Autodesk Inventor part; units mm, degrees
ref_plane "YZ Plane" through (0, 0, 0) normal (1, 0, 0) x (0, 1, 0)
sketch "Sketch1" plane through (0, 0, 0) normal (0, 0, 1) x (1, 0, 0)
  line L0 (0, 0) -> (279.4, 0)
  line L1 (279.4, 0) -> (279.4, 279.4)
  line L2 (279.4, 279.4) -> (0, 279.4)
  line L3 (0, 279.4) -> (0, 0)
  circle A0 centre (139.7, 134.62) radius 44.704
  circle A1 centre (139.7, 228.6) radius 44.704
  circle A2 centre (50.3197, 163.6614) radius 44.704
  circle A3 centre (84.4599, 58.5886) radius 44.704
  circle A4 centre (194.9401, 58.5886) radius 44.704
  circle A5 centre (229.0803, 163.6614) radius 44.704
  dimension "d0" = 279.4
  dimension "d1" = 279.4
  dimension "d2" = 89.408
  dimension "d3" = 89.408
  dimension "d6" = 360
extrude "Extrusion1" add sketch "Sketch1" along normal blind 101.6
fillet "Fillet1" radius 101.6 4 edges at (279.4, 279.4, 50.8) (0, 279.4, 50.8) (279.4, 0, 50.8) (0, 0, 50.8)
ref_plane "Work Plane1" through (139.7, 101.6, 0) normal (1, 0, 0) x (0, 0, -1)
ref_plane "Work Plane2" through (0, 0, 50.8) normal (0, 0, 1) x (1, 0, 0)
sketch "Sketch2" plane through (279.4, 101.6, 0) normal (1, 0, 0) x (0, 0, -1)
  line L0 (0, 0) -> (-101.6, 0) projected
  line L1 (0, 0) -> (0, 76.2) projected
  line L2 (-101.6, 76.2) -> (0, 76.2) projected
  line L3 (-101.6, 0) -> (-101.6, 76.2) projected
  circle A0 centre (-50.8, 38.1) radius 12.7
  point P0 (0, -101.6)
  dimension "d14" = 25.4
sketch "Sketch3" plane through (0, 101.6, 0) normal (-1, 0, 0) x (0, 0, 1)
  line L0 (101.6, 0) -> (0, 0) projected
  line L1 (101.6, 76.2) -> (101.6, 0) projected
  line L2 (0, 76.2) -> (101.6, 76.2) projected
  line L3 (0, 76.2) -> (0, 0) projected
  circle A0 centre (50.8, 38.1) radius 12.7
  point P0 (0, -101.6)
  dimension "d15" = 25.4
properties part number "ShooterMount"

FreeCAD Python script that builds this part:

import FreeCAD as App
import Part
import Sketcher
Q = App.Units.Quantity


def edges_at(feature, points):
    """Names of the edges that pass closest to the given points."""
    edges = feature.Shape.Edges
    near = lambda p: min(range(len(edges)), key=lambda i: edges[i].distToShape(Part.Vertex(*p))[0])
    return sorted({f"Edge{near(p) + 1}" for p in points})

doc = App.newDocument("Part")
body = doc.addObject("PartDesign::Body", "Body")

# Sketch on XY plane
sketch1 = body.newObject("Sketcher::SketchObject", "Sketch")
sketch1.AttachmentSupport = (doc.getObject("XY_Plane"), [""])
sketch1.MapMode = "FlatFace"
sketch1.addGeometry(Part.LineSegment(App.Vector(0, 279.4, 0), App.Vector(0, 0, 0)), False)
sketch1.addGeometry(Part.LineSegment(App.Vector(0, 0, 0), App.Vector(279.4, 0, 0)), False)
sketch1.addGeometry(Part.LineSegment(App.Vector(279.4, 0, 0), App.Vector(279.4, 279.4, 0)), False)
sketch1.addGeometry(Part.LineSegment(App.Vector(279.4, 279.4, 0), App.Vector(0, 279.4, 0)), False)
sketch1.addGeometry(Part.Circle(App.Vector(84.4599, 58.5886, 0), App.Vector(0, 0, 1), 44.704), False)
sketch1.addGeometry(Part.Circle(App.Vector(194.9401, 58.5886, 0), App.Vector(0, 0, 1), 44.704), False)
sketch1.addGeometry(Part.Circle(App.Vector(139.7, 134.62, 0), App.Vector(0, 0, 1), 44.704), False)
sketch1.addGeometry(Part.Circle(App.Vector(50.3197, 163.6614, 0), App.Vector(0, 0, 1), 44.704), False)
sketch1.addGeometry(Part.Circle(App.Vector(229.0803, 163.6614, 0), App.Vector(0, 0, 1), 44.704), False)
sketch1.addGeometry(Part.Circle(App.Vector(139.7, 228.6, 0), App.Vector(0, 0, 1), 44.704), False)
sketch1.addConstraint(Sketcher.Constraint("Coincident", 0, 2, 1, 1))
sketch1.addConstraint(Sketcher.Constraint("Coincident", 1, 2, 2, 1))
sketch1.addConstraint(Sketcher.Constraint("Coincident", 2, 2, 3, 1))
sketch1.addConstraint(Sketcher.Constraint("Coincident", 3, 2, 0, 1))
sketch1.addConstraint(Sketcher.Constraint("Vertical", 0))
sketch1.addConstraint(Sketcher.Constraint("Horizontal", 1))
sketch1.addConstraint(Sketcher.Constraint("Vertical", 2))
sketch1.addConstraint(Sketcher.Constraint("Horizontal", 3))
sketch1.addConstraint(Sketcher.Constraint("Coincident", 0, 2, -1, 1))
sketch1.addConstraint(Sketcher.Constraint("Equal", 4, 5))
sketch1.addConstraint(Sketcher.Constraint("Equal", 5, 6))
sketch1.addConstraint(Sketcher.Constraint("Equal", 6, 7))
sketch1.addConstraint(Sketcher.Constraint("Equal", 7, 8))
sketch1.addConstraint(Sketcher.Constraint("Equal", 8, 9))
sketch1.addConstraint(Sketcher.Constraint("Horizontal", 4, 3, 5, 3))
sketch1.addConstraint(Sketcher.Constraint("Horizontal", 7, 3, 8, 3))
sketch1.addConstraint(Sketcher.Constraint("Vertical", 6, 3, 9, 3))
sketch1.addConstraint(Sketcher.Constraint("Equal", 3, 0))
sketch1.addConstraint(Sketcher.Constraint("Diameter", 4, Q("3.52 in")))
sketch1.addConstraint(Sketcher.Constraint("DistanceX", 1, 1, 1, 2, Q("11 in")))
sketch1.addConstraint(Sketcher.Constraint("DistanceY", -1, 1, 9, 3, Q("9 in")))
sketch1.addConstraint(Sketcher.Constraint("DistanceX", -1, 1, 6, 3, Q("5.5 in")))
sketch1.addConstraint(Sketcher.Constraint("DistanceY", -1, 1, 6, 3, Q("5.3 in")))
sketch1.addConstraint(Sketcher.Constraint("DistanceX", -1, 1, 4, 3, Q("3.3252 in")))
sketch1.addConstraint(Sketcher.Constraint("DistanceX", -1, 1, 5, 3, Q("7.6748 in")))
sketch1.addConstraint(Sketcher.Constraint("DistanceX", -1, 1, 7, 3, Q("1.9811 in")))
sketch1.addConstraint(Sketcher.Constraint("DistanceX", -1, 1, 8, 3, Q("9.0189 in")))
sketch1.addConstraint(Sketcher.Constraint("DistanceY", -1, 1, 4, 3, 58.5886))
sketch1.addConstraint(Sketcher.Constraint("DistanceY", -1, 1, 7, 3, 163.6614))
pad1 = body.newObject("PartDesign::Pad", "Pad")
pad1.Profile = sketch1
pad1.Length = Q("4 in")
doc.recompute()

fillet = body.newObject("PartDesign::Fillet", "Fillet")
fillet.Base = (pad1, edges_at(pad1, [
    (279.4, 279.4, 50.8),
    (0, 279.4, 50.8),
    (279.4, 0, 50.8),
    (0, 0, 50.8),
]))
fillet.Radius = Q("4 in")

doc.recompute()
